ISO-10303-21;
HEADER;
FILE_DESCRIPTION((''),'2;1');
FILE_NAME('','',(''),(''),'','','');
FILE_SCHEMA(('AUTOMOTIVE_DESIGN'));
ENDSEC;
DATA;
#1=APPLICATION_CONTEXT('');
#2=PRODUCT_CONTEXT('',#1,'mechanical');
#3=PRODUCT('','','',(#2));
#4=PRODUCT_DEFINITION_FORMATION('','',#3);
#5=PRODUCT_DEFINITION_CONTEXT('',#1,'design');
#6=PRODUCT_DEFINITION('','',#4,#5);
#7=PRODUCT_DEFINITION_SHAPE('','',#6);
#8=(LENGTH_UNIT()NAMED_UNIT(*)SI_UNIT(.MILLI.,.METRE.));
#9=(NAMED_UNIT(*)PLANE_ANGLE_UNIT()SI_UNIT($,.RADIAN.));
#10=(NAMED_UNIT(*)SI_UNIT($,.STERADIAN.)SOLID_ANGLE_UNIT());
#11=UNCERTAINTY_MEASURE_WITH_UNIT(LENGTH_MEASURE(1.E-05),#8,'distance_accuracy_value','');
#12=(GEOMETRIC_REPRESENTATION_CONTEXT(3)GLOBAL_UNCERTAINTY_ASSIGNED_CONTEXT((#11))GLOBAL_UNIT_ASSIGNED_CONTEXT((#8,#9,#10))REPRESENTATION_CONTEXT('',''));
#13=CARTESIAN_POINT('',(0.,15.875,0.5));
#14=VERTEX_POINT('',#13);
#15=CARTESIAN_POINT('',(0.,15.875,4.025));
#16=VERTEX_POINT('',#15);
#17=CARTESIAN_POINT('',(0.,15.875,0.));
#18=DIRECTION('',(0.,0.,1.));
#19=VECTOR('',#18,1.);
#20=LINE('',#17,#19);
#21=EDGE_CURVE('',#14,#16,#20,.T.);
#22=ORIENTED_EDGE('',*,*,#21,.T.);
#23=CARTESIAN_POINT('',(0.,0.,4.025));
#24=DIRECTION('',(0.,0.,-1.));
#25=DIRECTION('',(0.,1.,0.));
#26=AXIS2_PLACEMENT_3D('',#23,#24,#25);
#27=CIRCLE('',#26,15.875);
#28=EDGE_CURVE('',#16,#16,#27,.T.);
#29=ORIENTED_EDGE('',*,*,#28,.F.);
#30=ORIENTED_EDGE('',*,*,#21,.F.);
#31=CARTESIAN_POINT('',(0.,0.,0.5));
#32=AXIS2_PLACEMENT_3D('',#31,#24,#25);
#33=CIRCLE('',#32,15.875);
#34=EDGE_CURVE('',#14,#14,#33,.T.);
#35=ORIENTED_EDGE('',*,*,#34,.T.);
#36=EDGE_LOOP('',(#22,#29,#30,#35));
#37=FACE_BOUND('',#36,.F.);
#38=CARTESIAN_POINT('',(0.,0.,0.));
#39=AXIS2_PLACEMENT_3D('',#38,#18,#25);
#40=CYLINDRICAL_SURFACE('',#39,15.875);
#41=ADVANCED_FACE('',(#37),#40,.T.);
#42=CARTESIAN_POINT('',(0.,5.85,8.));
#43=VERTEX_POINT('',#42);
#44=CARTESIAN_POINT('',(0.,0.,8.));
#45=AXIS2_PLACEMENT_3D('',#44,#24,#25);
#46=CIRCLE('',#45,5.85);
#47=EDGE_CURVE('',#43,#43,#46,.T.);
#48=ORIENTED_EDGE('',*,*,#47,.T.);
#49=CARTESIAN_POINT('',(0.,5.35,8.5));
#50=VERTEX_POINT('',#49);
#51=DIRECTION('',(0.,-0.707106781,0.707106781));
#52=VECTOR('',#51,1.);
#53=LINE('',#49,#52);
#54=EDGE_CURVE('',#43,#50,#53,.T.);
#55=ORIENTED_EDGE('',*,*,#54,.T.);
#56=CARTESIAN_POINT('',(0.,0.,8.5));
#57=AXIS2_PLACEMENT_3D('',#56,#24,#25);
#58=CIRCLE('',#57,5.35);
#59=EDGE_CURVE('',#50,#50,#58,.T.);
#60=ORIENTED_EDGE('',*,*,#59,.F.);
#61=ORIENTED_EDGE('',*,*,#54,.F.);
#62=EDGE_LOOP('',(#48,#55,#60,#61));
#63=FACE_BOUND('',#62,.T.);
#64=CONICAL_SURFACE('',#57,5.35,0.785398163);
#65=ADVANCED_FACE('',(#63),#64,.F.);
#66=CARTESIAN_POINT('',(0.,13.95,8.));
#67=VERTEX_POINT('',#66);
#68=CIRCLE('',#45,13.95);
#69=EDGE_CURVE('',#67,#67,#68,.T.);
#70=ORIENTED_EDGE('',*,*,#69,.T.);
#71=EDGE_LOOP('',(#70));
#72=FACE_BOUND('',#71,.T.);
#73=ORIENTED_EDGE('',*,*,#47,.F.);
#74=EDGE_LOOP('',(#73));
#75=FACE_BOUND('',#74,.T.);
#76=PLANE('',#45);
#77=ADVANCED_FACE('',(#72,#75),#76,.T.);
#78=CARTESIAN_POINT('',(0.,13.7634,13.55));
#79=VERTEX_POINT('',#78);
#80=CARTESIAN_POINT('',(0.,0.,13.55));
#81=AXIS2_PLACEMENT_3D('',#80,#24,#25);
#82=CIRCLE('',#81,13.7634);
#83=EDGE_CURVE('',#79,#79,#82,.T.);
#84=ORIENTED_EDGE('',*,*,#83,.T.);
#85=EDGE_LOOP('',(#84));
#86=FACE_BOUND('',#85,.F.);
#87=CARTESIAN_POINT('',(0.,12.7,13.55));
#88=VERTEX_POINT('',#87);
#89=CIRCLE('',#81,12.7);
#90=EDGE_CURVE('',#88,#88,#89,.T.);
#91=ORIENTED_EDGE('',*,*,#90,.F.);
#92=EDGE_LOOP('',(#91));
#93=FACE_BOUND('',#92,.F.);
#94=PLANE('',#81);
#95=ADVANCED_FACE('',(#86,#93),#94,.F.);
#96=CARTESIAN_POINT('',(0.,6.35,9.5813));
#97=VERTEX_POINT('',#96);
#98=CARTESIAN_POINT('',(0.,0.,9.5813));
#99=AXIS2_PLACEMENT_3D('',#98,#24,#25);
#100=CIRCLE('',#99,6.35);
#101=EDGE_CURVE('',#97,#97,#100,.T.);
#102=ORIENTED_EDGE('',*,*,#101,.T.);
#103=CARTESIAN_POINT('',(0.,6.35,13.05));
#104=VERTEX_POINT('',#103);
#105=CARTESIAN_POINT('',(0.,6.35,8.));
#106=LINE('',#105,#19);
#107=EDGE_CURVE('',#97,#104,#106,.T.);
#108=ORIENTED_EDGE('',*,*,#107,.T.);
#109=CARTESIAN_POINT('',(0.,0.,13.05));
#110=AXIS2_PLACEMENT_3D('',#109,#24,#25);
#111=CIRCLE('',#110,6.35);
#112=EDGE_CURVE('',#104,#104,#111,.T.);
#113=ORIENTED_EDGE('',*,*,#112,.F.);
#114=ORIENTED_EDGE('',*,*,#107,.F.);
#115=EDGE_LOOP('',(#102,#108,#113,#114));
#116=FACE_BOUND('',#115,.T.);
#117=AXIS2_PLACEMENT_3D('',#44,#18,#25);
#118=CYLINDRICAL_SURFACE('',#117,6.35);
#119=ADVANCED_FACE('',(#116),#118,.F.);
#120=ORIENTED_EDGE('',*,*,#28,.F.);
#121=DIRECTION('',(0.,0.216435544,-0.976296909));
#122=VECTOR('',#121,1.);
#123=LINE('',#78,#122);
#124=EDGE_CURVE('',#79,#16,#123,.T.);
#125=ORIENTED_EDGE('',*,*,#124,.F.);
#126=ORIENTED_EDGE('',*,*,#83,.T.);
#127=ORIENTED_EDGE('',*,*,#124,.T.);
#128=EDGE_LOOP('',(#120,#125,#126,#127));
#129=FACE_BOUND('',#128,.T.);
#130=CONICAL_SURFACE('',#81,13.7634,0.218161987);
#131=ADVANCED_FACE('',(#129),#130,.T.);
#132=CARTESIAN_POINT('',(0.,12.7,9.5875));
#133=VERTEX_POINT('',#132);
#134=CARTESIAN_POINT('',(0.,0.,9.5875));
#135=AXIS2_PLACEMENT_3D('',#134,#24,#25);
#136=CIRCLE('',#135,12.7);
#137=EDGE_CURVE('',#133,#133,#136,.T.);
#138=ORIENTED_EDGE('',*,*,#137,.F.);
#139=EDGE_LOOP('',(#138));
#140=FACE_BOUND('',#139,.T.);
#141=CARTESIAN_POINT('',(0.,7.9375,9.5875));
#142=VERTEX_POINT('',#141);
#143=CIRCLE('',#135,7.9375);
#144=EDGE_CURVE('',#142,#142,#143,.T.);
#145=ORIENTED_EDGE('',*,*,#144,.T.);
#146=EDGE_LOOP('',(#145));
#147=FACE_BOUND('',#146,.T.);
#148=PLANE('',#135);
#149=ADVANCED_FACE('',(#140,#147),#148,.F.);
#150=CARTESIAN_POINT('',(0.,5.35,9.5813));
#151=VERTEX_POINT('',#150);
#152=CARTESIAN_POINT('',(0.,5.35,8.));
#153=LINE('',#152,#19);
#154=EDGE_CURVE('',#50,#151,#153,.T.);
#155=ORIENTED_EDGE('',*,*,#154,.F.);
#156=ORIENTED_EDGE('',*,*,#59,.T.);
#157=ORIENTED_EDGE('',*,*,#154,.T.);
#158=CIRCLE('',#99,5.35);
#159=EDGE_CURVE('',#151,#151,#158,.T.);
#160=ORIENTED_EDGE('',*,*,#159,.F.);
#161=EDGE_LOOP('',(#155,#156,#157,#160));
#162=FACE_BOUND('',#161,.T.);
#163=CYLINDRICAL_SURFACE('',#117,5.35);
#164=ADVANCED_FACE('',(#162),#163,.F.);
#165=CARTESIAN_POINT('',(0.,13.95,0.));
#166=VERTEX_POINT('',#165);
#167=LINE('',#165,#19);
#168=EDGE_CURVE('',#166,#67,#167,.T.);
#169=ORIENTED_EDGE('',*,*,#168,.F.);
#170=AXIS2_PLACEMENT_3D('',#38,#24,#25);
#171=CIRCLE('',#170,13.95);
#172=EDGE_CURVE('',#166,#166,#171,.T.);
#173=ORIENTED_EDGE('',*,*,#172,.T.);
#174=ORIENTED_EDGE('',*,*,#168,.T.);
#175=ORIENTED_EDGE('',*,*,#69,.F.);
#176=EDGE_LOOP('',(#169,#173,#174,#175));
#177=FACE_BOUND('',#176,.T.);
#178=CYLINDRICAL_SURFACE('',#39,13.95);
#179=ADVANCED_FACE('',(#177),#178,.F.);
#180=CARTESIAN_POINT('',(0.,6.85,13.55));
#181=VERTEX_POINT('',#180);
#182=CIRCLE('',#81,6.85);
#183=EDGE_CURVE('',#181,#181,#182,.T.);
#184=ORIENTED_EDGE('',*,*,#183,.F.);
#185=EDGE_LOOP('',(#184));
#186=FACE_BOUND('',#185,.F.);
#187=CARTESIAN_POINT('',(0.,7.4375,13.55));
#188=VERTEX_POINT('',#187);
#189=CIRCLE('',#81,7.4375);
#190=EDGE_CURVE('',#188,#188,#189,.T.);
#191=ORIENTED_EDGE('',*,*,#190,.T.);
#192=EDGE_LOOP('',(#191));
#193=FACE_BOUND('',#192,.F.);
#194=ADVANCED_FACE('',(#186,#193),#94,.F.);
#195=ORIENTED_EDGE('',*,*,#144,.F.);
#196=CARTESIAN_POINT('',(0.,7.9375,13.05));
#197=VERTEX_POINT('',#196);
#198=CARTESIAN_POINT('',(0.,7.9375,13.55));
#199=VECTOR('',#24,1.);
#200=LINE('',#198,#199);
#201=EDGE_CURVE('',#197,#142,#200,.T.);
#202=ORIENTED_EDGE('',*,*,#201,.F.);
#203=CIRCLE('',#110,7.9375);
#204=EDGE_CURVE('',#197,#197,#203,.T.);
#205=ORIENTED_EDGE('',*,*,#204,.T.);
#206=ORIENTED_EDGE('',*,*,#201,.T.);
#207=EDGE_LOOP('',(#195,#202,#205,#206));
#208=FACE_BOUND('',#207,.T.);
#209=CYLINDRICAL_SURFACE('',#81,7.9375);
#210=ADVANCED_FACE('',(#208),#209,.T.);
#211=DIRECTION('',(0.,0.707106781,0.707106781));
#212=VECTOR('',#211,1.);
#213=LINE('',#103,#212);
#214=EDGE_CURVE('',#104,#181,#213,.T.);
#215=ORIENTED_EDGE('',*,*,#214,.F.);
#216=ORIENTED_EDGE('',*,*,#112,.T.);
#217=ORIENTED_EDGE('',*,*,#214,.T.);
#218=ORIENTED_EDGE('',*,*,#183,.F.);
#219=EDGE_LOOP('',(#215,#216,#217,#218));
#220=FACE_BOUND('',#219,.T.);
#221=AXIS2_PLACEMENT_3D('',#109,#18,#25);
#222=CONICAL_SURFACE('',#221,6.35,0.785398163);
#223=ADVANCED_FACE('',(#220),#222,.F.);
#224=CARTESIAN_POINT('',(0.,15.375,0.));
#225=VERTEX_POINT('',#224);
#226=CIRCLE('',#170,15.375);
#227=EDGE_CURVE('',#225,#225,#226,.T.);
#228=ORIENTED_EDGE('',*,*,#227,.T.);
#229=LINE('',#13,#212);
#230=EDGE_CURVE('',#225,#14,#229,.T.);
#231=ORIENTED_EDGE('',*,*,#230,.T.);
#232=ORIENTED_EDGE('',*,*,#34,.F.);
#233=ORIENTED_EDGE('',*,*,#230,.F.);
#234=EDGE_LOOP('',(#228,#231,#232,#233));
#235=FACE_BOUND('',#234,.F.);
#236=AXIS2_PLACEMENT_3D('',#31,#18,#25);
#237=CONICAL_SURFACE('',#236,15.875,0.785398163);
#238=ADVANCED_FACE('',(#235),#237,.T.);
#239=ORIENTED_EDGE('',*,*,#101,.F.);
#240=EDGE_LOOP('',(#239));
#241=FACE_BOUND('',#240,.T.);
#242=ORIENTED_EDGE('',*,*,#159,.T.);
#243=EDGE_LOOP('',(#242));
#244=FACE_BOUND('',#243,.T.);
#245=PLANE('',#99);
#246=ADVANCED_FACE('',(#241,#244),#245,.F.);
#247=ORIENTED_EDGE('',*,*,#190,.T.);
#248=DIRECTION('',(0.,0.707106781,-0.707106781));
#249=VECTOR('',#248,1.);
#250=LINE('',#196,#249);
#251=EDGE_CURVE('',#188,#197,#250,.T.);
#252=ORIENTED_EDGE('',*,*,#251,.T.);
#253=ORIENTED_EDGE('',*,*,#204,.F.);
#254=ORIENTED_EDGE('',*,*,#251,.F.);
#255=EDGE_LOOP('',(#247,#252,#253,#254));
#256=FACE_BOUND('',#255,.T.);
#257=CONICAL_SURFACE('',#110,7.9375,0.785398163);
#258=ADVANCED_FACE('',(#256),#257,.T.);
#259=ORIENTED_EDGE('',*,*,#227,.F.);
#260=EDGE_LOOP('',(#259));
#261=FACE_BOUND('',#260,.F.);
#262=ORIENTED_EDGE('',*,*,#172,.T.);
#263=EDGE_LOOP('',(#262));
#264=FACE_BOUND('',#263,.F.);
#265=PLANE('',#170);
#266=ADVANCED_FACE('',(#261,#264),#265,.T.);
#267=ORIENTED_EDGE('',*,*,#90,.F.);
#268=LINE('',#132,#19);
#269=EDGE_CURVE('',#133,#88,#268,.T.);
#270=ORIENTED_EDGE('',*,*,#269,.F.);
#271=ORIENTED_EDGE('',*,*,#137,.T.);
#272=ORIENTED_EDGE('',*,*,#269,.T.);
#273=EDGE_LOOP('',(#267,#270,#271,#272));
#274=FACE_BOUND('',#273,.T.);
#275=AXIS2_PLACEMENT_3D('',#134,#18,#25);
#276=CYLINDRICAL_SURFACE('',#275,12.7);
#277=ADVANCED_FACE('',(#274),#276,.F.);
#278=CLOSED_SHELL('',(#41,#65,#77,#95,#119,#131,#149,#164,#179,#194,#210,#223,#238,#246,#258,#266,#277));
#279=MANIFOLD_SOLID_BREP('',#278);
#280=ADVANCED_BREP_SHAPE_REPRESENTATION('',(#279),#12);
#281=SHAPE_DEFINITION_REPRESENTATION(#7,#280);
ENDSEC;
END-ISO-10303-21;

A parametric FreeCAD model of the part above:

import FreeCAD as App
import Part
import Sketcher

V = App.Vector
Q = App.Units.Quantity


def edges_at(feature, points):
    """Names of the edges that pass closest to the given points."""
    edges = feature.Shape.Edges
    near = lambda p: min(range(len(edges)), key=lambda i: edges[i].distToShape(Part.Vertex(*p))[0])
    return sorted({f"Edge{near(p) + 1}" for p in points})


def add_polygon(sketch, points):
    """Adds a closed chain of lines whose ends are joined by coincident constraints."""
    first, n = sketch.GeometryCount, len(points)
    for a, b in zip(points, points[1:] + points[:1]):
        sketch.addGeometry(Part.LineSegment(App.Vector(*a, 0), App.Vector(*b, 0)), False)
    for i in range(n):
        sketch.addConstraint(Sketcher.Constraint("Coincident", first + i, 2, first + (i + 1) % n, 1))

doc = App.newDocument("Part")
params = doc.addObject("Spreadsheet::Sheet", "Params")
for row, (alias, value) in enumerate([
    ("sketch1_width", "1 mm"),
    ("sketch1_height", "8 mm"),
    ("revolution_angle", "360 deg"),
    ("chamfer_size", "0.5 mm"),
], start=1):
    params.set(f"A{row}", alias)
    params.set(f"B{row}", "=" + value)
    params.setAlias(f"B{row}", alias)

body = doc.addObject("PartDesign::Body", "Body")

sketch1 = doc.addObject("Sketcher::SketchObject", "Sketch")
body.addObject(sketch1)
sketch1.AttachmentSupport = (doc.YZ_Plane, [""])
sketch1.MapMode = "FlatFace"
add_polygon(sketch1, [(13.95, 8), (13.95, 0), (15.875, 0), (15.875, 4.025), (13.7634, 13.55), (12.7, 13.55), (12.7, 9.5875), (7.9375, 9.5875), (7.9375, 13.55), (6.35, 13.55), (6.35, 9.5813), (5.35, 9.5813), (5.35, 8)])
sketch1.addConstraint([
    Sketcher.Constraint("Vertical", 0),
    Sketcher.Constraint("Horizontal", 1),
    Sketcher.Constraint("Vertical", 2),
    Sketcher.Constraint("Horizontal", 4),
    Sketcher.Constraint("Vertical", 5),
    Sketcher.Constraint("Horizontal", 6),
    Sketcher.Constraint("Vertical", 7),
    Sketcher.Constraint("Horizontal", 8),
    Sketcher.Constraint("Vertical", 9),
    Sketcher.Constraint("Horizontal", 10),
    Sketcher.Constraint("Vertical", 11),
    Sketcher.Constraint("Horizontal", 12),
    Sketcher.Constraint("PointOnObject", 0, 2, -1),
    Sketcher.Constraint("Horizontal", 4, 2, 7, 2),
    Sketcher.Constraint("DistanceX", 10, 2, 10, 1, 1.0),
    Sketcher.Constraint("DistanceY", 0, 2, 0, 1, 8.0),
    Sketcher.Constraint("DistanceX", -1, 1, 0, 2, 13.95),
    Sketcher.Constraint("DistanceY", -1, 1, 3, 2, 13.55),
    Sketcher.Constraint("DistanceX", -1, 1, 8, 2, 6.35),
    Sketcher.Constraint("DistanceX", 8, 2, 4, 2, 6.35),
    Sketcher.Constraint("DistanceX", 8, 2, 8, 1, 1.5875),
    Sketcher.Constraint("DistanceY", 9, 2, 9, 1, 3.9687),
    Sketcher.Constraint("DistanceX", -1, 1, 1, 2, 15.875),
    Sketcher.Constraint("Angle", 3, Q("102.4998 deg")),
    Sketcher.Constraint("DistanceY", 2, 2, 3, 2, 9.525),
    Sketcher.Constraint("DistanceY", 11, 2, 6, 2, 1.5875),
])
sketch1.setExpression("Constraints[27]", "Params.sketch1_width")
sketch1.setExpression("Constraints[28]", "Params.sketch1_height")
revolution = doc.addObject("PartDesign::Revolution", "Revolution")
body.addObject(revolution)
revolution.Profile = sketch1
revolution.ReferenceAxis = (sketch1, ["V_Axis"])
revolution.setExpression("Angle", "Params.revolution_angle")
doc.recompute()

chamfer = doc.addObject("PartDesign::Chamfer", "Chamfer")
body.addObject(chamfer)
chamfer.Base = (revolution, edges_at(revolution, [
    (0, -6.35, 13.55),
    (0, -15.875, 0),
    (0, -5.35, 8),
    (0, -7.938, 13.55),
]))
chamfer.setExpression("Size", "Params.chamfer_size")

doc.recompute()
